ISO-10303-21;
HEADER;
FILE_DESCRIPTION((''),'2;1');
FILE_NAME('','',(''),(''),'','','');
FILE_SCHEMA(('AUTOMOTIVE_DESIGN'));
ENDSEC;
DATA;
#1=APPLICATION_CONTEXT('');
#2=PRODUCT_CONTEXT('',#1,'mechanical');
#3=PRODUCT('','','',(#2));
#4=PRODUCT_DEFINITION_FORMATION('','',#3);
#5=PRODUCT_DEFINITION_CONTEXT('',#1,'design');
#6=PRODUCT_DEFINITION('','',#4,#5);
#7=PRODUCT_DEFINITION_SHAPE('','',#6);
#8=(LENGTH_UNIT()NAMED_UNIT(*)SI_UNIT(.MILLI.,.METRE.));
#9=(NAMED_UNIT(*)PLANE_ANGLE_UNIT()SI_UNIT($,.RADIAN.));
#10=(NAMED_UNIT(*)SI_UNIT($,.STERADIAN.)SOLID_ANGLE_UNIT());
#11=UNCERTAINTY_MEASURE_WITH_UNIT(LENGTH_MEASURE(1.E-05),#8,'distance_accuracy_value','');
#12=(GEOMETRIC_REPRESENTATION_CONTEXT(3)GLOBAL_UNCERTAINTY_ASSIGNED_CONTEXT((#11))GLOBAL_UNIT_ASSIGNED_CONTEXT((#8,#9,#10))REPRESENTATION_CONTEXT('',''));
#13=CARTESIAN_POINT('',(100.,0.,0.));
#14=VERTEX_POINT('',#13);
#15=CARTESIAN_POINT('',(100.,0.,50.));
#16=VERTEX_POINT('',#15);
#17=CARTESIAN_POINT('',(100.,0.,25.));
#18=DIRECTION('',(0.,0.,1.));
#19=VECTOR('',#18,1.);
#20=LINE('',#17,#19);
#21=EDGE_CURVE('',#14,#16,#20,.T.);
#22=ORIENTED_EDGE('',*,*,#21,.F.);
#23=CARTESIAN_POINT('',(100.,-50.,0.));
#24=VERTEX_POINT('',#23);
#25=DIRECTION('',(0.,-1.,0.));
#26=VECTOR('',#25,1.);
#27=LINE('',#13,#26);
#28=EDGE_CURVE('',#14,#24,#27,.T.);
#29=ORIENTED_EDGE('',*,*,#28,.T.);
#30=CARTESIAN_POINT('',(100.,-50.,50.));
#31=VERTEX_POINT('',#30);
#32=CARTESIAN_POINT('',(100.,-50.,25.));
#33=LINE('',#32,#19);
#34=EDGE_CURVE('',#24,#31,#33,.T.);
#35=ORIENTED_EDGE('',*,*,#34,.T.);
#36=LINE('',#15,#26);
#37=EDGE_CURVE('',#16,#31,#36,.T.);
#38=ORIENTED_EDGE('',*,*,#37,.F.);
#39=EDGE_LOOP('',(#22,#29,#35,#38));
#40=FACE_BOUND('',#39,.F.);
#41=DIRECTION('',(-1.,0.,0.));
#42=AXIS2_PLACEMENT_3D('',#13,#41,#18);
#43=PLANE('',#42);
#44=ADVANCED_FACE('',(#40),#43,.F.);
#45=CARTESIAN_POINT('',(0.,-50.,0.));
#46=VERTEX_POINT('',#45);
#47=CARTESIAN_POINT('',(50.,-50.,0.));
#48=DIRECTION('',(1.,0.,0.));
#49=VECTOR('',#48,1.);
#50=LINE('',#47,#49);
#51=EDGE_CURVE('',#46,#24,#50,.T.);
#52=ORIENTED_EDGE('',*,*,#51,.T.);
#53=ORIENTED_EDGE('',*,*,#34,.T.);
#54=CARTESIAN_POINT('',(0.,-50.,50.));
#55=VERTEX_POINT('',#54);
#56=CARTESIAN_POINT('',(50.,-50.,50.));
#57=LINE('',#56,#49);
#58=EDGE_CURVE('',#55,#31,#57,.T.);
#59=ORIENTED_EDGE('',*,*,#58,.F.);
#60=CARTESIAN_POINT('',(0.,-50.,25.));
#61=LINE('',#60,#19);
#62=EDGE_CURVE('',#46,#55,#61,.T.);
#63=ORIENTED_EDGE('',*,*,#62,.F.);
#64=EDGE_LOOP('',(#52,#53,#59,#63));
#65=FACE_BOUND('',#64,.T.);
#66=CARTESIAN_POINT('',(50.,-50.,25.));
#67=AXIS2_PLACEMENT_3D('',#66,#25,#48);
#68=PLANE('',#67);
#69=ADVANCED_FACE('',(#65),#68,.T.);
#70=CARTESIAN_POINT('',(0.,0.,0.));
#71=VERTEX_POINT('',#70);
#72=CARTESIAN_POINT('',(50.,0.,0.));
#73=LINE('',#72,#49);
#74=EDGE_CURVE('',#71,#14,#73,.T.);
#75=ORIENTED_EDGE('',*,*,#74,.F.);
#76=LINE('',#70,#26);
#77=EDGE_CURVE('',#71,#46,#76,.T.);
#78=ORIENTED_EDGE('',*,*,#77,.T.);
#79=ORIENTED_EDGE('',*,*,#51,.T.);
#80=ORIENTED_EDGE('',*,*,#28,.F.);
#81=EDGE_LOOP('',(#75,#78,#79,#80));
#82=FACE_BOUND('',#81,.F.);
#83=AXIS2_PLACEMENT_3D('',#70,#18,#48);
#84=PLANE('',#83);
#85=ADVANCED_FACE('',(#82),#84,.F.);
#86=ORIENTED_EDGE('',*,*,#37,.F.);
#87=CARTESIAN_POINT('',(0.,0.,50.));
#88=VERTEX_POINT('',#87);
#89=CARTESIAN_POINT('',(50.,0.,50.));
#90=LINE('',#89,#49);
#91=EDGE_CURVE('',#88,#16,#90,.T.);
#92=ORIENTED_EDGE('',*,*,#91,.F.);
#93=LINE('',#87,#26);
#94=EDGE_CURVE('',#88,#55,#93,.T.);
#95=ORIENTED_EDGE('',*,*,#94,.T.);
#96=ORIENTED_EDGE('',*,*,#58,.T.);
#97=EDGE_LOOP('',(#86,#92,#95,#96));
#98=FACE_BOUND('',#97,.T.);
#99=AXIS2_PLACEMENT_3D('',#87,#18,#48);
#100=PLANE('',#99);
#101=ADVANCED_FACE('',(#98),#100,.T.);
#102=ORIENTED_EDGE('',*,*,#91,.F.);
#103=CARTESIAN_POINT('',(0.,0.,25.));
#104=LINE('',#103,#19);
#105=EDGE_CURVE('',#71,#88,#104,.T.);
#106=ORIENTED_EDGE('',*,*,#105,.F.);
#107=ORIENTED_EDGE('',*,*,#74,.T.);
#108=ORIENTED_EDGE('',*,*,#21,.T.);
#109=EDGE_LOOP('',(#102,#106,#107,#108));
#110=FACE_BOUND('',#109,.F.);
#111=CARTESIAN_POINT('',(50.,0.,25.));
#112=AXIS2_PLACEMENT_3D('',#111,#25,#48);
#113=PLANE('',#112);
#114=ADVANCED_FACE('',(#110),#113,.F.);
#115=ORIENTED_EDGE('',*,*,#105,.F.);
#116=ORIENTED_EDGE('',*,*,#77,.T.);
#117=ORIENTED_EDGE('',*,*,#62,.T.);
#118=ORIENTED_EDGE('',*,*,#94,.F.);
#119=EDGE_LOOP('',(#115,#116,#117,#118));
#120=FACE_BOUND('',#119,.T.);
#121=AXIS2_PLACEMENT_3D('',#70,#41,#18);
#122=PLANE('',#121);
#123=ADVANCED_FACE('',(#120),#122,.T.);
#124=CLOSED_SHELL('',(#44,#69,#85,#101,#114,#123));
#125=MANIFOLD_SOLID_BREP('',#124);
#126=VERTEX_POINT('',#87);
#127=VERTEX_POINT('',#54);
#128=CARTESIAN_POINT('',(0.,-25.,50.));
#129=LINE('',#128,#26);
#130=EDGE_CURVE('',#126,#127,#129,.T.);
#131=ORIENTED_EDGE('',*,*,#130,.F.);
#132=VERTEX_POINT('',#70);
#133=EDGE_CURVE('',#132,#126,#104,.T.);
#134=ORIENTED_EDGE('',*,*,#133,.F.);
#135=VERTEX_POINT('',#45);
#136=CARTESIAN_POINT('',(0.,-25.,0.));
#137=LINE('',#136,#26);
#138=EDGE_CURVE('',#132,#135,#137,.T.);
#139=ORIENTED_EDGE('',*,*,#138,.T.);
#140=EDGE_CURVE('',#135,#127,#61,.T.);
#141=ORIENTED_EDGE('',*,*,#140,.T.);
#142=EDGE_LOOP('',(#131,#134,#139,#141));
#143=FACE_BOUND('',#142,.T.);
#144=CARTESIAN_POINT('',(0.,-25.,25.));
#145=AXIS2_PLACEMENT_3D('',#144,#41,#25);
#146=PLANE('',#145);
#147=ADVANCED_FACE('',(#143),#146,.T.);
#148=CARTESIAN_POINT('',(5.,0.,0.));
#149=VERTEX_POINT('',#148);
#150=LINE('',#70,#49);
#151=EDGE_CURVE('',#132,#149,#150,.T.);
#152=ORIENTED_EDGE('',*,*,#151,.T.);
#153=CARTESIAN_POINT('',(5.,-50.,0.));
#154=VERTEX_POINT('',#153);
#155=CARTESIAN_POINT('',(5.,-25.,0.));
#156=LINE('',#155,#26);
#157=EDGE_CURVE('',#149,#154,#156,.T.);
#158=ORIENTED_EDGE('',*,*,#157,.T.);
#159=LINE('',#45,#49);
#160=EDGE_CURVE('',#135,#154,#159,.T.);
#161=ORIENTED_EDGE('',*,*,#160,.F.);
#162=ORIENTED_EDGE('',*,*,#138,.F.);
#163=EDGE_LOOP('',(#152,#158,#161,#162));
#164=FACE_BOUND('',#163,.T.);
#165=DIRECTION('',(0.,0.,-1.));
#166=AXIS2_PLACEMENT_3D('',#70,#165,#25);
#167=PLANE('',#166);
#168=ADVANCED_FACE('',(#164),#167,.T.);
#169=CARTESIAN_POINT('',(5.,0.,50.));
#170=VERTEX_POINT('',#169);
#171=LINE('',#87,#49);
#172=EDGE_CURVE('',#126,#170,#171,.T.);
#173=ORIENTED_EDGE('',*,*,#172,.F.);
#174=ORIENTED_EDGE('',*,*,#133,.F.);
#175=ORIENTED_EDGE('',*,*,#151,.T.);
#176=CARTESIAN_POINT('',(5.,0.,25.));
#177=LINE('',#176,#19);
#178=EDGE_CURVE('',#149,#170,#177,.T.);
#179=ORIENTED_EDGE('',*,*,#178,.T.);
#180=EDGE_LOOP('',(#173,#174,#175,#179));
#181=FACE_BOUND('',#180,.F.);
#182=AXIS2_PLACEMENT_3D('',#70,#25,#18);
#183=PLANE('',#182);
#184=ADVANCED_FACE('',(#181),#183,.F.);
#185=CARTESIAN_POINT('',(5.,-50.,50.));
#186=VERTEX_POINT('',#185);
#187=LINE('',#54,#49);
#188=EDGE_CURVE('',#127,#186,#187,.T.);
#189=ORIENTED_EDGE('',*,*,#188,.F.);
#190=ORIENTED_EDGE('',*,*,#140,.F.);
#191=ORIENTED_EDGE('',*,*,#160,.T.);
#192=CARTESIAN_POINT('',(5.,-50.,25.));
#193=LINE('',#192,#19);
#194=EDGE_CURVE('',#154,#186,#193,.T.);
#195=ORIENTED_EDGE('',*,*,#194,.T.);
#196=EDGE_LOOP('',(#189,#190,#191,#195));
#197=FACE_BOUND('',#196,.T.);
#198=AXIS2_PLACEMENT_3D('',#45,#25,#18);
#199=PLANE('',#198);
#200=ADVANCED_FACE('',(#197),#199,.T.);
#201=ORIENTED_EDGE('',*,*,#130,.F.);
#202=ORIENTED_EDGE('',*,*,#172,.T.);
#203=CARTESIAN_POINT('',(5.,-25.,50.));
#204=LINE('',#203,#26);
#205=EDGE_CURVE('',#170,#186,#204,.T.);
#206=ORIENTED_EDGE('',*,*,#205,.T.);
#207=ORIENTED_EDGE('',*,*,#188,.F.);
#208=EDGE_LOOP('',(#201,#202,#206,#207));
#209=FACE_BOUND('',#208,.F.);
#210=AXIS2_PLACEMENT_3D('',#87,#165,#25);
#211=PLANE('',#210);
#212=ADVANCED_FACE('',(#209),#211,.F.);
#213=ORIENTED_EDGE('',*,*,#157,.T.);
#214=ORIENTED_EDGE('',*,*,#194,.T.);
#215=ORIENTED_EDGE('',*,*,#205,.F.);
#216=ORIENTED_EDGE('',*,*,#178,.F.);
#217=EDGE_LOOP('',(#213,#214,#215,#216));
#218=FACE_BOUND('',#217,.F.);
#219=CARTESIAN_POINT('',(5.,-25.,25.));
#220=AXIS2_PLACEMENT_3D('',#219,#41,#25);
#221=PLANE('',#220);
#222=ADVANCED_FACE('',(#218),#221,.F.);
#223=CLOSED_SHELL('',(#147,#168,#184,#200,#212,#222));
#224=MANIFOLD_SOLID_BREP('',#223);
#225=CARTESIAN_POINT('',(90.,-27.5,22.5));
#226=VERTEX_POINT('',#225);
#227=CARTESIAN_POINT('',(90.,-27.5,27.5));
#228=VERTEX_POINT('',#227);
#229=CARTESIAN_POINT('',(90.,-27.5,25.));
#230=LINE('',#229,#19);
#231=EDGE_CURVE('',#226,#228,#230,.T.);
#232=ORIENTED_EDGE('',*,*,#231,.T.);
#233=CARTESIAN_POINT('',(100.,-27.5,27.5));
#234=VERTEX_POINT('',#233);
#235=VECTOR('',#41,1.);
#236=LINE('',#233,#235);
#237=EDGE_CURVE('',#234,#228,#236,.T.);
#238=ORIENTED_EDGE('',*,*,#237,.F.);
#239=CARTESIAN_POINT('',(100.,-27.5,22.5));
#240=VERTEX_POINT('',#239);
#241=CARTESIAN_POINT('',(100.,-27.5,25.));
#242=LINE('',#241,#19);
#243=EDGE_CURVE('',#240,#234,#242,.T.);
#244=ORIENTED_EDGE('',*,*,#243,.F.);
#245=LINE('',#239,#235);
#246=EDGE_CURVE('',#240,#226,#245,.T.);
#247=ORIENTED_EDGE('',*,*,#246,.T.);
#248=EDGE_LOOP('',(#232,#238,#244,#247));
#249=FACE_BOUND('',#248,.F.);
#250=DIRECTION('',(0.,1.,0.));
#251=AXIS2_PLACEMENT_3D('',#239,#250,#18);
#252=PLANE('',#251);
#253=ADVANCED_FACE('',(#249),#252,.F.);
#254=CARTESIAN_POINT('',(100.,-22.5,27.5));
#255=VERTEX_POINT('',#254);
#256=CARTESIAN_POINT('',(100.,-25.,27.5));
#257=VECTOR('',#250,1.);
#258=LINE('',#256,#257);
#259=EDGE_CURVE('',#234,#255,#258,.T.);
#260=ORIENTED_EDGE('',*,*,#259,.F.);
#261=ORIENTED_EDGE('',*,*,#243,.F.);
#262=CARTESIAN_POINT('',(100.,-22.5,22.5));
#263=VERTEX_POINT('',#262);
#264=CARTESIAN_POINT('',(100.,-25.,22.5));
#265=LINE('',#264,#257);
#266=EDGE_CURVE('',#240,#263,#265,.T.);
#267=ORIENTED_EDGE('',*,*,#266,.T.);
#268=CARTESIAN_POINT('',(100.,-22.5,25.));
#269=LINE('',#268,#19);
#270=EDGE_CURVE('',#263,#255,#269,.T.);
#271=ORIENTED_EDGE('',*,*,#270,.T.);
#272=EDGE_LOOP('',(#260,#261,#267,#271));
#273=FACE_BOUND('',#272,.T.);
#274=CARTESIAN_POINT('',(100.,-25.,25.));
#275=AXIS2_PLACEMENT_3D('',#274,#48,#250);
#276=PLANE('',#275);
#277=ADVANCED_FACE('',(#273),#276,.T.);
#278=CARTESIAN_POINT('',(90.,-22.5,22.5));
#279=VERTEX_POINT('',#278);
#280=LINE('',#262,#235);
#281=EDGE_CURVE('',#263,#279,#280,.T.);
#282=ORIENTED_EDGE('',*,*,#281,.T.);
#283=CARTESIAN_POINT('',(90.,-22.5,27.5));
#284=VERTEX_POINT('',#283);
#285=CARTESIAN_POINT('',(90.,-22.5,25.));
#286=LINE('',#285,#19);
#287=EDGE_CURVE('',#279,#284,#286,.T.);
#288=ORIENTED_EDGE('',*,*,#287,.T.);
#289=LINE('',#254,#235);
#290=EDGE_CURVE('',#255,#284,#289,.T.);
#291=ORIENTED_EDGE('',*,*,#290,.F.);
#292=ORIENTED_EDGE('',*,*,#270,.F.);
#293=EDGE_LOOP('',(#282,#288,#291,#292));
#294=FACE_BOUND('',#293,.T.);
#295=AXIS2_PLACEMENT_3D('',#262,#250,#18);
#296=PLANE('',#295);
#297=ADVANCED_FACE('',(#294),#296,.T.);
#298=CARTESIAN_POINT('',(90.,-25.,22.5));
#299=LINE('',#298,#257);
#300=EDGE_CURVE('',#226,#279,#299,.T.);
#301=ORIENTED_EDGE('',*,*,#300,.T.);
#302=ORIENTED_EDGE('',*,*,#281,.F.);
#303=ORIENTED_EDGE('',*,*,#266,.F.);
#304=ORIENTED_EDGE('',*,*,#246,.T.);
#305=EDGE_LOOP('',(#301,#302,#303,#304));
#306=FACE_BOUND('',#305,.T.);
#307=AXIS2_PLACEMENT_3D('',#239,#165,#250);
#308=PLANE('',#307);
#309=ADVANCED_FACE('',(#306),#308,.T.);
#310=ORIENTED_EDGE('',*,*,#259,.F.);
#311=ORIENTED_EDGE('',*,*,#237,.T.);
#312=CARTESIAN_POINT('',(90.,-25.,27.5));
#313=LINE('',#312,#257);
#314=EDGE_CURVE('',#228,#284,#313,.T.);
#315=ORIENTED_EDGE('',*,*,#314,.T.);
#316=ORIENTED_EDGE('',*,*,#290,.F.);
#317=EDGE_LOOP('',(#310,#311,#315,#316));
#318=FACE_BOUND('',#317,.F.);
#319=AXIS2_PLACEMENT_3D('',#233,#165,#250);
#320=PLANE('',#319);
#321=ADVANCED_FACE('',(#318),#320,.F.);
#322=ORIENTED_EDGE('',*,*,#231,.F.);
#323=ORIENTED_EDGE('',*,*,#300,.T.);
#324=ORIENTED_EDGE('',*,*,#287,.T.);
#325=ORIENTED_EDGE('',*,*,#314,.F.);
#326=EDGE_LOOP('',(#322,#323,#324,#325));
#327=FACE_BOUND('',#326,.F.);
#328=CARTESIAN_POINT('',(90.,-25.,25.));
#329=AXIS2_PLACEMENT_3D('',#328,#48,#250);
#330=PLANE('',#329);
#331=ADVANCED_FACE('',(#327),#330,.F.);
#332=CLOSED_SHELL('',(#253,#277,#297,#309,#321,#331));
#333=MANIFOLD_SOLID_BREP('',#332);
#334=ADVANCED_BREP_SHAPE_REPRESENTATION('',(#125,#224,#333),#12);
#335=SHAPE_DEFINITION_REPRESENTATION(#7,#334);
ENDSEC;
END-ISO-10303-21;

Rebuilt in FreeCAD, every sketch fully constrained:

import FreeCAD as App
import Part
import Sketcher

V = App.Vector


def add_polygon(sketch, points):
    """Adds a closed chain of lines whose ends are joined by coincident constraints."""
    first, n = sketch.GeometryCount, len(points)
    for a, b in zip(points, points[1:] + points[:1]):
        sketch.addGeometry(Part.LineSegment(App.Vector(*a, 0), App.Vector(*b, 0)), False)
    for i in range(n):
        sketch.addConstraint(Sketcher.Constraint("Coincident", first + i, 2, first + (i + 1) % n, 1))

doc = App.newDocument("Part")
body = doc.addObject("PartDesign::Body", "Body")

# Sketch on XZ plane
sketch1 = body.newObject("Sketcher::SketchObject", "Sketch")
sketch1.AttachmentSupport = (doc.getObject("XZ_Plane"), [""])
sketch1.MapMode = "FlatFace"
add_polygon(sketch1, [(0, 50), (0, 0), (100, 0), (100, 50)])  # lines 0-3
sketch1.addConstraint(Sketcher.Constraint("Vertical", 0))
sketch1.addConstraint(Sketcher.Constraint("Horizontal", 1))
sketch1.addConstraint(Sketcher.Constraint("Vertical", 2))
sketch1.addConstraint(Sketcher.Constraint("Horizontal", 3))
sketch1.addConstraint(Sketcher.Constraint("Coincident", 0, 2, -1, 1))
sketch1.addConstraint(Sketcher.Constraint("DistanceX", 1, 1, 1, 2, 100.0))
sketch1.addConstraint(Sketcher.Constraint("DistanceY", 0, 2, 0, 1, 50.0))
pad1 = body.newObject("PartDesign::Pad", "Pad")
pad1.Profile = sketch1
pad1.Length = 50
body2 = doc.addObject("PartDesign::Body", "Body001")

# Sketch on YZ plane
sketch2 = body2.newObject("Sketcher::SketchObject", "Sketch001")
sketch2.AttachmentSupport = (doc.getObject("YZ_Plane001"), [""])
sketch2.MapMode = "FlatFace"
add_polygon(sketch2, [(0, 50), (0, 0), (-50, 0), (-50, 50)])  # lines 0-3
sketch2.addConstraint(Sketcher.Constraint("Vertical", 0))
sketch2.addConstraint(Sketcher.Constraint("Horizontal", 1))
sketch2.addConstraint(Sketcher.Constraint("Vertical", 2))
sketch2.addConstraint(Sketcher.Constraint("Horizontal", 3))
sketch2.addConstraint(Sketcher.Constraint("Coincident", 0, 2, -1, 1))
sketch2.addConstraint(Sketcher.Constraint("Equal", 3, 0))
sketch2.addConstraint(Sketcher.Constraint("DistanceX", 1, 2, 1, 1, 50.0))
pad2 = body2.newObject("PartDesign::Pad", "Pad001")
pad2.Profile = sketch2
pad2.Length = 5
body3 = doc.addObject("PartDesign::Body", "Body002")

# Sketch on YZ plane
sketch3 = body3.newObject("Sketcher::SketchObject", "Sketch002")
sketch3.AttachmentSupport = (doc.getObject("YZ_Plane002"), [""])
sketch3.MapMode = "FlatFace"
sketch3.AttachmentOffset = App.Placement(V(0, 0, 100), App.Rotation())
add_polygon(sketch3, [(-28, 28), (-28, 22), (-22, 22), (-22, 28)])  # lines 0-3
sketch3.addConstraint(Sketcher.Constraint("Vertical", 0))
sketch3.addConstraint(Sketcher.Constraint("Horizontal", 1))
sketch3.addConstraint(Sketcher.Constraint("Vertical", 2))
sketch3.addConstraint(Sketcher.Constraint("Horizontal", 3))
sketch3.addConstraint(Sketcher.Constraint("Equal", 3, 0))
sketch3.addConstraint(Sketcher.Constraint("DistanceX", 1, 1, 1, 2, 5.0))
sketch3.addConstraint(Sketcher.Constraint("DistanceX", 0, 2, -1, 1, 27.5))
sketch3.addConstraint(Sketcher.Constraint("DistanceY", -1, 1, 0, 2, 22.5))
pad3 = body3.newObject("PartDesign::Pad", "Pad002")
pad3.Profile = sketch3
pad3.Length = 10
pad3.Reversed = True

doc.recompute()
